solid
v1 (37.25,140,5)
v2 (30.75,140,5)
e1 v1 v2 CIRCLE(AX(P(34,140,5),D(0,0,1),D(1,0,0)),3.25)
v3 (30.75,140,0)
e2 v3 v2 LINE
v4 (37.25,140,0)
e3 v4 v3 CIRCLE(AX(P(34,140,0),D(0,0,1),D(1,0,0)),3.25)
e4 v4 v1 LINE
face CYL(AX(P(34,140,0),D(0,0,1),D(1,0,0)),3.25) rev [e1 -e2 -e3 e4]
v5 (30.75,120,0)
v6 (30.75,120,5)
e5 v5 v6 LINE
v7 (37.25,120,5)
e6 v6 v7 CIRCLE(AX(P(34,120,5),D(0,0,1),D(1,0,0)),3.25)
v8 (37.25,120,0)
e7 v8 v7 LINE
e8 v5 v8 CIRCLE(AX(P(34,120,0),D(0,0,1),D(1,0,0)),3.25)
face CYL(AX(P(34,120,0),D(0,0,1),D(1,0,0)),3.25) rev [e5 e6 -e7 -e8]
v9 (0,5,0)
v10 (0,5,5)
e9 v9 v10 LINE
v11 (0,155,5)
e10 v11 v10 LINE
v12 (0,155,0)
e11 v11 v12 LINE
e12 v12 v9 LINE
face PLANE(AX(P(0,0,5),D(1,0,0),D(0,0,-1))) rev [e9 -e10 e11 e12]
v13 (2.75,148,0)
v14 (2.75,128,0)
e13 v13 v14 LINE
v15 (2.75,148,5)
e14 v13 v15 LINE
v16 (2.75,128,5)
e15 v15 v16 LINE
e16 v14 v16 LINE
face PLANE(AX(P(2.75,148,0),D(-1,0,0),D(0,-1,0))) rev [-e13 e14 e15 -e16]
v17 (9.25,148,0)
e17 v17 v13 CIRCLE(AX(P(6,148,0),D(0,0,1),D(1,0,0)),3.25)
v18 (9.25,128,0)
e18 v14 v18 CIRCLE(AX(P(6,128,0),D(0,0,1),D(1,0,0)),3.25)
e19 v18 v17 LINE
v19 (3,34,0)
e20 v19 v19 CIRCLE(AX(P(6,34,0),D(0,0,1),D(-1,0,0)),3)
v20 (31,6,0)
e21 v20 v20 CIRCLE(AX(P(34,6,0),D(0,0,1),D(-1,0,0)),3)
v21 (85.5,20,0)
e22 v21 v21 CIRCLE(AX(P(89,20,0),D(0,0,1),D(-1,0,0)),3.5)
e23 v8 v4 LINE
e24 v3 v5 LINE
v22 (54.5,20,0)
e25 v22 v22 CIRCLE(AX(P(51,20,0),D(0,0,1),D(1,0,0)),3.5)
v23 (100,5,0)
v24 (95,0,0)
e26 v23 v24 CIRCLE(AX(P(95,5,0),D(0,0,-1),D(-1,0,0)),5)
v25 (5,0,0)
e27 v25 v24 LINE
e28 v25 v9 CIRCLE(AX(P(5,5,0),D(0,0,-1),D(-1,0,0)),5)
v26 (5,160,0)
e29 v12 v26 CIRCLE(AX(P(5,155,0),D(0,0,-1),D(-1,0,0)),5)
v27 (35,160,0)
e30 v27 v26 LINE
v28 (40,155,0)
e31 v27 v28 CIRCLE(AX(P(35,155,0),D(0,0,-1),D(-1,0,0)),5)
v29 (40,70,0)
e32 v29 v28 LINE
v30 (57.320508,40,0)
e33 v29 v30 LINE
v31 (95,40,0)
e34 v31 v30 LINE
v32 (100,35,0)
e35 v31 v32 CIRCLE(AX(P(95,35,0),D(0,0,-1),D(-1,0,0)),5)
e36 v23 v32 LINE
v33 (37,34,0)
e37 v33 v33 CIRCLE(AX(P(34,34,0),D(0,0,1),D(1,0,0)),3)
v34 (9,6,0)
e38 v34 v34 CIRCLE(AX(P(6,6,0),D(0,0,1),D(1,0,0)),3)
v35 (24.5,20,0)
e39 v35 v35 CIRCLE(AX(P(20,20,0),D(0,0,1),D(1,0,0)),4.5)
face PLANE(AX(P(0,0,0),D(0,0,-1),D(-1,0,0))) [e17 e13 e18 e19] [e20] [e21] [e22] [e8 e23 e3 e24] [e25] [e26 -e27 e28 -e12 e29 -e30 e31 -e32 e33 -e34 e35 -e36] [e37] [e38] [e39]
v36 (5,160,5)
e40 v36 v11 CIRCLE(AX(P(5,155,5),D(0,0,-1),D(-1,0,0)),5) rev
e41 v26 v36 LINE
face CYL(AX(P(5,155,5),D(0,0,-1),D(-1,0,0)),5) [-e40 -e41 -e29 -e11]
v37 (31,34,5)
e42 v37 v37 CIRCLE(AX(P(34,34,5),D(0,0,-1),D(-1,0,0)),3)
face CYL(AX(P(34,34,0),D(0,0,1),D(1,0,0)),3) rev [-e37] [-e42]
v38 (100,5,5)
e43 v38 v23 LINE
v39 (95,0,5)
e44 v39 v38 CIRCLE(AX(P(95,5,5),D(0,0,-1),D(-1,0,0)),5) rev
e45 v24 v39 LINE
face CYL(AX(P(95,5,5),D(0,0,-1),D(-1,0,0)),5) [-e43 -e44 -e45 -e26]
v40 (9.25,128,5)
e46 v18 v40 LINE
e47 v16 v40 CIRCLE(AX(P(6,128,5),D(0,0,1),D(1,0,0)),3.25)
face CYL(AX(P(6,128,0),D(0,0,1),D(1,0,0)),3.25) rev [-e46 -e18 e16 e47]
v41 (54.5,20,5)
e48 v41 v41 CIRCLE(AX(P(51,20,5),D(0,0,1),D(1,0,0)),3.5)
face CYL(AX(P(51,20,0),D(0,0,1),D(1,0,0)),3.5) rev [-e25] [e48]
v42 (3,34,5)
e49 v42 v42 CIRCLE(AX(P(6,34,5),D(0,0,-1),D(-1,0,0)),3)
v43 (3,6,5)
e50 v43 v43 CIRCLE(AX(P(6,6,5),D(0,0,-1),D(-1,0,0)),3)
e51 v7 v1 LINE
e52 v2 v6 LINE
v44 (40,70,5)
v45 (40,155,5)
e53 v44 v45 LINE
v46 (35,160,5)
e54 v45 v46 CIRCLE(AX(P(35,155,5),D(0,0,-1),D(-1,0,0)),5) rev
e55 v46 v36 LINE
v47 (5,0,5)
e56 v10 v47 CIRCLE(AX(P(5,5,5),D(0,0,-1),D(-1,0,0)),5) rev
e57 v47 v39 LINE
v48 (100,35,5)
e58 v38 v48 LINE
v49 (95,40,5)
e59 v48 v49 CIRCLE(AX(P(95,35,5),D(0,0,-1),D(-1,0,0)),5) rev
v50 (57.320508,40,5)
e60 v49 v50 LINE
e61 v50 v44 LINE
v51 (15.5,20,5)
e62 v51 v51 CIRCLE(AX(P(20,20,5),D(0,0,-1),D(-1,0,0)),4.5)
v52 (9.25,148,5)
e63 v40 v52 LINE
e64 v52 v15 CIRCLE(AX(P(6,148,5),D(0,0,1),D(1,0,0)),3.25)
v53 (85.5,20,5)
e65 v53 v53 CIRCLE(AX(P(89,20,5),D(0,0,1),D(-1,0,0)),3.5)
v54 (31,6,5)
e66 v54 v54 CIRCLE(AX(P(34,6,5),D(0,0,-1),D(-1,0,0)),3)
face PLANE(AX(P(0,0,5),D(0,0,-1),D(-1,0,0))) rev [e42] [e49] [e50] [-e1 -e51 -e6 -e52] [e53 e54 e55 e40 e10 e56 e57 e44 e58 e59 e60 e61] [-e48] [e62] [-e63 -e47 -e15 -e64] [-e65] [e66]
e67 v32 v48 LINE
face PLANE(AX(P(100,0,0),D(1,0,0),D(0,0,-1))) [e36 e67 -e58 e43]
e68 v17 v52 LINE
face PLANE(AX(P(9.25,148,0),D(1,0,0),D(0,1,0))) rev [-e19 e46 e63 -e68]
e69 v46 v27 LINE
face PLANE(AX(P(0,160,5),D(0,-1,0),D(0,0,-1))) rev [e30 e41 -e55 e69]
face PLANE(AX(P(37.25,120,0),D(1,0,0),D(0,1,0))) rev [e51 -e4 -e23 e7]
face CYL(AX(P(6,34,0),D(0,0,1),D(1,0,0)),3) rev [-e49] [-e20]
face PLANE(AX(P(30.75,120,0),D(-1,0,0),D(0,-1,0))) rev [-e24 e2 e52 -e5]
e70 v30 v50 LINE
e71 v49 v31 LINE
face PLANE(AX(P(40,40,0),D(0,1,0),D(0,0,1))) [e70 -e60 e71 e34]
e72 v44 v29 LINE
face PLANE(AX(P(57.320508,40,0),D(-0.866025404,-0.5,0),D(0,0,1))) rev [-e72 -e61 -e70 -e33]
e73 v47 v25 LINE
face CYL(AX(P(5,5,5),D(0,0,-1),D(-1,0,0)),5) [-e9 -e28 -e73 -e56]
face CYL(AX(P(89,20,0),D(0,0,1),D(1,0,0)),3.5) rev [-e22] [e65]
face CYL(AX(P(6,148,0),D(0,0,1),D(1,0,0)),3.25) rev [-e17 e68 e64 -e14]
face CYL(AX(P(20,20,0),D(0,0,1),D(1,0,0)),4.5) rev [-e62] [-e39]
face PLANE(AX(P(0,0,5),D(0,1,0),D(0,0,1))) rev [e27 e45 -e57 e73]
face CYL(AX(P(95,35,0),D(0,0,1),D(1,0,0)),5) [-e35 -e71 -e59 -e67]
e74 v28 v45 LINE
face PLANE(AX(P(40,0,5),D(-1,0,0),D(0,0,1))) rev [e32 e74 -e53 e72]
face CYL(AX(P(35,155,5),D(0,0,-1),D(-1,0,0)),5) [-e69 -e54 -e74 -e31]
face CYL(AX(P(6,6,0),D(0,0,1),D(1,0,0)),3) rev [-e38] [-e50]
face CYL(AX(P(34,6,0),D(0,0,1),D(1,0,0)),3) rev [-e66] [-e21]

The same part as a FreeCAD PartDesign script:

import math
import FreeCAD as App
import Part
import Sketcher
from FreeCAD import Vector


def edges_at(feature, points):
    """Names of the edges that pass closest to the given points."""
    edges = feature.Shape.Edges
    near = lambda p: min(range(len(edges)), key=lambda i: edges[i].distToShape(Part.Vertex(*p))[0])
    return sorted({f"Edge{near(p) + 1}" for p in points})

doc = App.newDocument("Part")
body = doc.addObject("PartDesign::Body", "Body")

# Sketch on XY plane
sketch1 = body.newObject("Sketcher::SketchObject", "Sketch")
sketch1.AttachmentSupport = (doc.getObject("XY_Plane"), [""])
sketch1.MapMode = "FlatFace"
sketch1.addGeometry([
    Part.LineSegment(Vector(0, 160, 0), Vector(0, 0, 0)),
    Part.LineSegment(Vector(0, 0, 0), Vector(40, 0, 0)),
    Part.LineSegment(Vector(40, 0, 0), Vector(40, 160, 0)),
    Part.LineSegment(Vector(40, 160, 0), Vector(0, 160, 0)),
], False)
sketch1.addConstraint([
    Sketcher.Constraint("Coincident", 0, 2, 1, 1),
    Sketcher.Constraint("Coincident", 1, 2, 2, 1),
    Sketcher.Constraint("Coincident", 2, 2, 3, 1),
    Sketcher.Constraint("Coincident", 3, 2, 0, 1),
    Sketcher.Constraint("Vertical", 0),
    Sketcher.Constraint("Horizontal", 1),
    Sketcher.Constraint("Vertical", 2),
    Sketcher.Constraint("Horizontal", 3),
    Sketcher.Constraint("Coincident", 0, 2, -1, 1),
    Sketcher.Constraint("DistanceX", 1, 1, 1, 2, 40.0),
    Sketcher.Constraint("DistanceY", 0, 2, 0, 1, 160.0),
])
pad1 = body.newObject("PartDesign::Pad", "Pad")
pad1.Profile = sketch1
pad1.Length = 5

# Sketch on XY plane
sketch2 = body.newObject("Sketcher::SketchObject", "Sketch001")
sketch2.AttachmentSupport = (doc.getObject("XY_Plane"), [""])
sketch2.MapMode = "FlatFace"
sketch2.AttachmentOffset = App.Placement(Vector(0, 0, 5), App.Rotation())
sketch2.addGeometry([
    Part.Circle(Vector(20, 20, 0), Vector(0, 0, 1), 4.5),  # 0
    Part.Circle(Vector(6, 6, 0), Vector(0, 0, 1), 3),  # 1
    Part.Circle(Vector(34, 6, 0), Vector(0, 0, 1), 3),  # 2
    Part.Circle(Vector(34, 34, 0), Vector(0, 0, 1), 3),  # 3
    Part.Circle(Vector(6, 34, 0), Vector(0, 0, 1), 3),  # 4
    Part.LineSegment(Vector(9.25, 128, 0), Vector(9.25, 148, 0)),  # 5
    Part.ArcOfCircle(Part.Circle(Vector(6, 148, 0), Vector(0, 0, 1), 3.25), math.radians(0), math.radians(180)),  # 6
    Part.LineSegment(Vector(2.75, 148, 0), Vector(2.75, 128, 0)),  # 7
    Part.ArcOfCircle(Part.Circle(Vector(6, 128, 0), Vector(0, 0, 1), 3.25), math.radians(180), math.radians(360)),  # 8
    Part.LineSegment(Vector(30.75, 140, 0), Vector(30.75, 120, 0)),  # 9
    Part.ArcOfCircle(Part.Circle(Vector(34, 120, 0), Vector(0, 0, 1), 3.25), math.radians(180), math.radians(360)),  # 10
    Part.LineSegment(Vector(37.25, 120, 0), Vector(37.25, 140, 0)),  # 11
    Part.ArcOfCircle(Part.Circle(Vector(34, 140, 0), Vector(0, 0, 1), 3.25), math.radians(0), math.radians(180)),  # 12
], False)
sketch2.addConstraint([
    Sketcher.Constraint("Tangent", 5, 2, 6, 1),
    Sketcher.Constraint("Tangent", 6, 2, 7, 1),
    Sketcher.Constraint("Tangent", 7, 2, 8, 1),
    Sketcher.Constraint("Tangent", 8, 2, 5, 1),
    Sketcher.Constraint("Tangent", 9, 2, 10, 1),
    Sketcher.Constraint("Tangent", 10, 2, 11, 1),
    Sketcher.Constraint("Tangent", 11, 2, 12, 1),
    Sketcher.Constraint("Tangent", 12, 2, 9, 1),
    Sketcher.Constraint("Vertical", 5),
    Sketcher.Constraint("Vertical", 7),
    Sketcher.Constraint("Vertical", 9),
    Sketcher.Constraint("Vertical", 11),
    Sketcher.Constraint("Equal", 1, 2),
    Sketcher.Constraint("Equal", 2, 3),
    Sketcher.Constraint("Equal", 3, 4),
    Sketcher.Constraint("Equal", 8, 10),
    Sketcher.Constraint("Horizontal", 1, 3, 2, 3),
    Sketcher.Constraint("Horizontal", 3, 3, 4, 3),
    Sketcher.Constraint("Vertical", 2, 3, 3, 3),
    Sketcher.Constraint("Vertical", 1, 3, 4, 3),
    Sketcher.Constraint("Vertical", 4, 3, 6, 3),
    Sketcher.Constraint("Vertical", 3, 3, 10, 3),
    Sketcher.Constraint("Equal", 7, 9),
    Sketcher.Constraint("Diameter", 0, 9.0),
    Sketcher.Constraint("Diameter", 1, 6.0),
    Sketcher.Constraint("DistanceY", 5, 1, 5, 2, 20.0),
    Sketcher.Constraint("Radius", 6, 3.25),
    Sketcher.Constraint("DistanceX", -1, 1, 0, 3, 20.0),
    Sketcher.Constraint("DistanceY", -1, 1, 0, 3, 20.0),
    Sketcher.Constraint("DistanceX", -1, 1, 1, 3, 6.0),
    Sketcher.Constraint("DistanceY", -1, 1, 1, 3, 6.0),
    Sketcher.Constraint("DistanceX", -1, 1, 2, 3, 34.0),
    Sketcher.Constraint("DistanceY", -1, 1, 3, 3, 34.0),
    Sketcher.Constraint("DistanceY", -1, 1, 6, 3, 148.0),
    Sketcher.Constraint("DistanceY", -1, 1, 10, 3, 120.0),
])
pocket1 = body.newObject("PartDesign::Pocket", "Pocket")
pocket1.Profile = sketch2
pocket1.Type = "ThroughAll"
pocket1.Midplane = True

# Sketch on XY plane
sketch3 = body.newObject("Sketcher::SketchObject", "Sketch002")
sketch3.AttachmentSupport = (doc.getObject("XY_Plane"), [""])
sketch3.MapMode = "FlatFace"
sketch3.AttachmentOffset = App.Placement(Vector(0, 0, 5), App.Rotation())
sketch3.addGeometry([
    Part.LineSegment(Vector(40, 40, 0), Vector(40, 0, 0)),  # 0
    Part.LineSegment(Vector(40, 0, 0), Vector(100, 0, 0)),  # 1
    Part.LineSegment(Vector(100, 0, 0), Vector(100, 40, 0)),  # 2
    Part.LineSegment(Vector(100, 40, 0), Vector(40, 40, 0)),  # 3
    Part.Circle(Vector(51, 20, 0), Vector(0, 0, 1), 3.5),  # 4
    Part.Circle(Vector(89, 20, 0), Vector(0, 0, 1), 3.5),  # 5
], False)
sketch3.addConstraint([
    Sketcher.Constraint("Coincident", 0, 2, 1, 1),
    Sketcher.Constraint("Coincident", 1, 2, 2, 1),
    Sketcher.Constraint("Coincident", 2, 2, 3, 1),
    Sketcher.Constraint("Coincident", 3, 2, 0, 1),
    Sketcher.Constraint("Vertical", 0),
    Sketcher.Constraint("Horizontal", 1),
    Sketcher.Constraint("Vertical", 2),
    Sketcher.Constraint("Horizontal", 3),
    Sketcher.Constraint("Equal", 4, 5),
    Sketcher.Constraint("PointOnObject", 0, 2, -1),
    Sketcher.Constraint("Horizontal", 4, 3, 5, 3),
    Sketcher.Constraint("Diameter", 4, 7.0),
    Sketcher.Constraint("DistanceX", 1, 1, 1, 2, 60.0),
    Sketcher.Constraint("DistanceY", 0, 2, 0, 1, 40.0),
    Sketcher.Constraint("DistanceX", -1, 1, 4, 3, 51.0),
    Sketcher.Constraint("DistanceY", -1, 1, 4, 3, 20.0),
    Sketcher.Constraint("DistanceX", -1, 1, 5, 3, 89.0),
    Sketcher.Constraint("DistanceX", -1, 1, 0, 2, 40.0),
])
pad2 = body.newObject("PartDesign::Pad", "Pad001")
pad2.Profile = sketch3
pad2.Length = 5
pad2.Reversed = True
doc.recompute()

fillet = body.newObject("PartDesign::Fillet", "Fillet")
fillet.Base = (pad2, edges_at(pad2, [
    (0, 160, 2.5),
    (40, 160, 2.5),
    (0, 0, 2.5),
    (100, 40, 2.5),
    (100, 0, 2.5),
]))
fillet.Radius = 5
doc.recompute()

chamfer = body.newObject("PartDesign::Chamfer", "Chamfer")
chamfer.Base = (fillet, edges_at(fillet, [(40, 40, 2.5)]))
chamfer.ChamferType = "Two distances"
chamfer.Size = 30
chamfer.Size2 = 17.320508

doc.recompute()
